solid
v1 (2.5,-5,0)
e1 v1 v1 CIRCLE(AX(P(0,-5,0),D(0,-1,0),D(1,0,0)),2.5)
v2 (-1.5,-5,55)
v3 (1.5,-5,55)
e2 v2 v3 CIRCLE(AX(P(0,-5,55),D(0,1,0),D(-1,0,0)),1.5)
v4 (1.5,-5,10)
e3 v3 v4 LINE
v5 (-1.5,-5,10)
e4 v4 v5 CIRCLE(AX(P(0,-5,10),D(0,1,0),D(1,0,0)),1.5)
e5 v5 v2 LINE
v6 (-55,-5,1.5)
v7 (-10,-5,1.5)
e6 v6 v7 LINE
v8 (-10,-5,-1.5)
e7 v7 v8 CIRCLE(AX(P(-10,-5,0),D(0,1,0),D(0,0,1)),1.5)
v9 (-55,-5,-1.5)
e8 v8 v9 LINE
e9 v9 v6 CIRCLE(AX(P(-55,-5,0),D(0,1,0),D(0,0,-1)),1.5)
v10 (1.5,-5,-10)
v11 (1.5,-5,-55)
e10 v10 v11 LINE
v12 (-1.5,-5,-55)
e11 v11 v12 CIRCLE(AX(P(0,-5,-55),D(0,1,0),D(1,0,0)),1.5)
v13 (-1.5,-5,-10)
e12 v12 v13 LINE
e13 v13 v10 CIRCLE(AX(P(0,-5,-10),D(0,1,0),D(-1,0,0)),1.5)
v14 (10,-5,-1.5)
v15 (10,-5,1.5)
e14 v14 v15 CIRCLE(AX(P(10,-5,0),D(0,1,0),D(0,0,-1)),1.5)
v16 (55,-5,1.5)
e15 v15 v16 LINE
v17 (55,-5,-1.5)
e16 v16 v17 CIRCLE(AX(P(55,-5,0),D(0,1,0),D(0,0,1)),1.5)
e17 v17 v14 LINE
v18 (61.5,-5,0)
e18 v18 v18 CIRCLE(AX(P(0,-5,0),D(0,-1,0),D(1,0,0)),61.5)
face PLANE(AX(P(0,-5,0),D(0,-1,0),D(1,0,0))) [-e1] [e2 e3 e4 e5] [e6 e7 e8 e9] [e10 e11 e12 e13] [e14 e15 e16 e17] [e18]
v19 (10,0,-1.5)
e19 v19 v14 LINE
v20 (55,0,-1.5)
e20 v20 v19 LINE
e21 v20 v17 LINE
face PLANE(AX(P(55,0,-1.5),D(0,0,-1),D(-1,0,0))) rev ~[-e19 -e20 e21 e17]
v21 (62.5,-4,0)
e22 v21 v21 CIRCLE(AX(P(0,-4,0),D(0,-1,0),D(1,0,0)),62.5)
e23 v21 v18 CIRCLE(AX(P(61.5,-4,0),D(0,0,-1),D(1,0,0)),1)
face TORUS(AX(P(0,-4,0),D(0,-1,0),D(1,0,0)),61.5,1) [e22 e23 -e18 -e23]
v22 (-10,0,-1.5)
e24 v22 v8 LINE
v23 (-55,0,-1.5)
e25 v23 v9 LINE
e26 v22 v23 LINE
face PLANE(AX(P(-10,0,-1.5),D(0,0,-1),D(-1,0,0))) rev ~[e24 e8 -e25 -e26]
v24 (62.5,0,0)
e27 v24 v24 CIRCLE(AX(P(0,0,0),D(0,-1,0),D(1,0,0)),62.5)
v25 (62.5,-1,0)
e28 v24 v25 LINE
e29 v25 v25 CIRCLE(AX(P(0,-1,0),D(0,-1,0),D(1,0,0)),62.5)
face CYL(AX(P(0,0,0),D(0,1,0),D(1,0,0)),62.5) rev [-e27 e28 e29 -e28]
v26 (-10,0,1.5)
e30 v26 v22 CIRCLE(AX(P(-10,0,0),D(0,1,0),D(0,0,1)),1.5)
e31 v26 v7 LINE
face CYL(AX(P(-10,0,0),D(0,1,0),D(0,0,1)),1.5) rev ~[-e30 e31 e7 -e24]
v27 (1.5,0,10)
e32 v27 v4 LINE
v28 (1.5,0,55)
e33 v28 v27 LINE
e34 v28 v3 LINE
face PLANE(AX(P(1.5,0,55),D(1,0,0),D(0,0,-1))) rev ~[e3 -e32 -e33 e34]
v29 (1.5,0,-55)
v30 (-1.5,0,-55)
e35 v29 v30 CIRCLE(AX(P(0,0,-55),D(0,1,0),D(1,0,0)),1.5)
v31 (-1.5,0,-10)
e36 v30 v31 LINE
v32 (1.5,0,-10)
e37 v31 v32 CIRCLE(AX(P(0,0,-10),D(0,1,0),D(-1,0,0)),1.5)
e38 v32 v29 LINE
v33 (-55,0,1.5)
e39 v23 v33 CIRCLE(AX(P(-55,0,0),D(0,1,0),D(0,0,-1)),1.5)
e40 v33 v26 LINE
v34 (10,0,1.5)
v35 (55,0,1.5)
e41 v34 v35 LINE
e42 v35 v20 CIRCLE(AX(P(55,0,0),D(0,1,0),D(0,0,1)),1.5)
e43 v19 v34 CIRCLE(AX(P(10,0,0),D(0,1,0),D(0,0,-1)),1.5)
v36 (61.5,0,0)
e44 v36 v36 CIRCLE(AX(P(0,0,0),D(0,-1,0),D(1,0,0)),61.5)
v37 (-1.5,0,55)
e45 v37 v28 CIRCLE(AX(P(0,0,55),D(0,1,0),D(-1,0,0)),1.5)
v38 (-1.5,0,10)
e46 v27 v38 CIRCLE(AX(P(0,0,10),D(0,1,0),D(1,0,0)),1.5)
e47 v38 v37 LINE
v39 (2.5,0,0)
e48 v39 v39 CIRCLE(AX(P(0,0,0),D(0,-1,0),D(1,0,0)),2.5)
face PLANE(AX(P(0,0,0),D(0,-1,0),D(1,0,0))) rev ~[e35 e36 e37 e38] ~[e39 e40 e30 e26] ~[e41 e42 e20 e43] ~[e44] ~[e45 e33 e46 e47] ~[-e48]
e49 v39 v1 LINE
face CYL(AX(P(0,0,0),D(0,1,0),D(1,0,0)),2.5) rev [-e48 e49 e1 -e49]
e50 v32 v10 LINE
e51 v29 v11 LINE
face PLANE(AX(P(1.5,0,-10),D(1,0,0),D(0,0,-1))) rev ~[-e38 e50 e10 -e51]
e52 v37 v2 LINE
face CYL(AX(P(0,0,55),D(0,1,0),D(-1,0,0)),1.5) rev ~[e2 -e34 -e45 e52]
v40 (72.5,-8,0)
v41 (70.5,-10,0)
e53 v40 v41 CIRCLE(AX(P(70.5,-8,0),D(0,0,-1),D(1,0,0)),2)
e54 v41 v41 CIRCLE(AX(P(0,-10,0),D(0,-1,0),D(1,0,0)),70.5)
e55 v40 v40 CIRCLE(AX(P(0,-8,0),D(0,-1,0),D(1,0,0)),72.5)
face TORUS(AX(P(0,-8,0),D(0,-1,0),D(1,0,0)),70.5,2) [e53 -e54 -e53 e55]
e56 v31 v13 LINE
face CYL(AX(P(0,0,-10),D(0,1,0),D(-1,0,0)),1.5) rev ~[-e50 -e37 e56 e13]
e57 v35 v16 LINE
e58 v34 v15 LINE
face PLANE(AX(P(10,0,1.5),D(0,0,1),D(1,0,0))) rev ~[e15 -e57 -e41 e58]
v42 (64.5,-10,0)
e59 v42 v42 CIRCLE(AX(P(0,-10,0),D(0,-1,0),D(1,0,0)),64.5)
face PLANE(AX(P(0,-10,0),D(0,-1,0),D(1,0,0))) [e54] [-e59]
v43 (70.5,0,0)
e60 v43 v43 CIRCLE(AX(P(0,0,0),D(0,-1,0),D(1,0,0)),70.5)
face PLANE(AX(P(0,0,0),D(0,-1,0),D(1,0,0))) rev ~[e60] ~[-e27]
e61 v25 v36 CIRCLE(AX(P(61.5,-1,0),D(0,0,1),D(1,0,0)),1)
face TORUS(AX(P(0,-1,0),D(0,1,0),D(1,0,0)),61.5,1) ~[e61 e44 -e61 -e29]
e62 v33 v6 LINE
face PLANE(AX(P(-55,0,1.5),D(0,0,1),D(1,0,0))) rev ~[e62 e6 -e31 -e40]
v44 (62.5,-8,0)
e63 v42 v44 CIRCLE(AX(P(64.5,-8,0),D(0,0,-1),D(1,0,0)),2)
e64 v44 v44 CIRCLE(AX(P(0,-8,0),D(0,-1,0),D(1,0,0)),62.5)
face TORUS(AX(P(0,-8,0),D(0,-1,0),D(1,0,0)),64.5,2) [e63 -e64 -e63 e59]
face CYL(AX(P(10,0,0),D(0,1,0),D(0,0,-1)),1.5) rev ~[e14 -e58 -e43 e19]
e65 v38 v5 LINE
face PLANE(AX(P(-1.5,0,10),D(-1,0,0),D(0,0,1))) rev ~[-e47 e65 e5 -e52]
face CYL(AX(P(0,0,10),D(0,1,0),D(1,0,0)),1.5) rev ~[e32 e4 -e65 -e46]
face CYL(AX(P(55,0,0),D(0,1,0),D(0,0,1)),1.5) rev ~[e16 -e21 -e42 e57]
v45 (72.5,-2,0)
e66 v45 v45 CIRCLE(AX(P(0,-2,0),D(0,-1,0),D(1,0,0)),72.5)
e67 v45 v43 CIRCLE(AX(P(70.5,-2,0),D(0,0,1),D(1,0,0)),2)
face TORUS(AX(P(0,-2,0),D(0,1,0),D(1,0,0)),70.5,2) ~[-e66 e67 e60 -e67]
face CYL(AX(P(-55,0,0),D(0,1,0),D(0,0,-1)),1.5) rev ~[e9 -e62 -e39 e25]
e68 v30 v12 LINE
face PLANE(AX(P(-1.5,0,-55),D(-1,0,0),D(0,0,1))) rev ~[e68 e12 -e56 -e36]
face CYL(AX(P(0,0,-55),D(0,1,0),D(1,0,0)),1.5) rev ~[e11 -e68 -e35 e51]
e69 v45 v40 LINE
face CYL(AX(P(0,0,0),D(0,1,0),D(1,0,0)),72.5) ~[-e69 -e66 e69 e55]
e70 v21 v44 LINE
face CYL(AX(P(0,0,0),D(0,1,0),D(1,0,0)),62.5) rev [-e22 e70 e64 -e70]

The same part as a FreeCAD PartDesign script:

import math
import FreeCAD as App
import Part
import Sketcher
from FreeCAD import Vector


def edges_at(feature, points):
    """Names of the edges that pass closest to the given points."""
    edges = feature.Shape.Edges
    near = lambda p: min(range(len(edges)), key=lambda i: edges[i].distToShape(Part.Vertex(*p))[0])
    return sorted({f"Edge{near(p) + 1}" for p in points})

doc = App.newDocument("Part")
body = doc.addObject("PartDesign::Body", "Body")

sketch1 = body.newObject("Sketcher::SketchObject", "Sketch")
sketch1.AttachmentSupport = (doc.getObject("XZ_Plane"), [""])
sketch1.MapMode = "FlatFace"
sketch1.addGeometry(Part.Circle(Vector(0, 0, 0), Vector(0, 0, 1), 62.5), False)
sketch1.addGeometry(Part.LineSegment(Vector(-1.5, -55, 0), Vector(-1.5, -10, 0)), False)
sketch1.addGeometry(Part.ArcOfCircle(Part.Circle(Vector(0, -10, 0), Vector(0, 0, 1), 1.5), math.radians(0), math.radians(180)), False)
sketch1.addGeometry(Part.LineSegment(Vector(1.5, -10, 0), Vector(1.5, -55, 0)), False)
sketch1.addGeometry(Part.ArcOfCircle(Part.Circle(Vector(0, -55, 0), Vector(0, 0, 1), 1.5), math.radians(180), math.radians(360)), False)
sketch1.addGeometry(Part.LineSegment(Vector(-55, 1.5, 0), Vector(-10, 1.5, 0)), False)
sketch1.addGeometry(Part.ArcOfCircle(Part.Circle(Vector(-10, 0, 0), Vector(0, 0, 1), 1.5), math.radians(-90), math.radians(90)), False)
sketch1.addGeometry(Part.LineSegment(Vector(-10, -1.5, 0), Vector(-55, -1.5, 0)), False)
sketch1.addGeometry(Part.ArcOfCircle(Part.Circle(Vector(-55, 0, 0), Vector(0, 0, 1), 1.5), math.radians(90), math.radians(270)), False)
sketch1.addGeometry(Part.Circle(Vector(0, 0, 0), Vector(0, 0, 1), 2.5), False)
sketch1.addGeometry(Part.ArcOfCircle(Part.Circle(Vector(55, 0, 0), Vector(0, 0, 1), 1.5), math.radians(-90), math.radians(90)), False)
sketch1.addGeometry(Part.LineSegment(Vector(55, -1.5, 0), Vector(10, -1.5, 0)), False)
sketch1.addGeometry(Part.ArcOfCircle(Part.Circle(Vector(10, 0, 0), Vector(0, 0, 1), 1.5), math.radians(90), math.radians(270)), False)
sketch1.addGeometry(Part.LineSegment(Vector(10, 1.5, 0), Vector(55, 1.5, 0)), False)
sketch1.addGeometry(Part.ArcOfCircle(Part.Circle(Vector(0, 55, 0), Vector(0, 0, 1), 1.5), math.radians(0), math.radians(180)), False)
sketch1.addGeometry(Part.LineSegment(Vector(1.5, 55, 0), Vector(1.5, 10, 0)), False)
sketch1.addGeometry(Part.ArcOfCircle(Part.Circle(Vector(0, 10, 0), Vector(0, 0, 1), 1.5), math.radians(180), math.radians(360)), False)
sketch1.addGeometry(Part.LineSegment(Vector(-1.5, 10, 0), Vector(-1.5, 55, 0)), False)
sketch1.addConstraint(Sketcher.Constraint("Tangent", 1, 2, 2, 2))
sketch1.addConstraint(Sketcher.Constraint("Tangent", 2, 1, 3, 1))
sketch1.addConstraint(Sketcher.Constraint("Tangent", 3, 2, 4, 2))
sketch1.addConstraint(Sketcher.Constraint("Tangent", 4, 1, 1, 1))
sketch1.addConstraint(Sketcher.Constraint("Tangent", 5, 2, 6, 2))
sketch1.addConstraint(Sketcher.Constraint("Tangent", 6, 1, 7, 1))
sketch1.addConstraint(Sketcher.Constraint("Tangent", 7, 2, 8, 2))
sketch1.addConstraint(Sketcher.Constraint("Tangent", 8, 1, 5, 1))
sketch1.addConstraint(Sketcher.Constraint("Tangent", 10, 1, 11, 1))
sketch1.addConstraint(Sketcher.Constraint("Tangent", 11, 2, 12, 2))
sketch1.addConstraint(Sketcher.Constraint("Tangent", 12, 1, 13, 1))
sketch1.addConstraint(Sketcher.Constraint("Tangent", 13, 2, 10, 2))
sketch1.addConstraint(Sketcher.Constraint("Tangent", 14, 1, 15, 1))
sketch1.addConstraint(Sketcher.Constraint("Tangent", 15, 2, 16, 2))
sketch1.addConstraint(Sketcher.Constraint("Tangent", 16, 1, 17, 1))
sketch1.addConstraint(Sketcher.Constraint("Tangent", 17, 2, 14, 2))
sketch1.addConstraint(Sketcher.Constraint("Vertical", 1))
sketch1.addConstraint(Sketcher.Constraint("Vertical", 3))
sketch1.addConstraint(Sketcher.Constraint("Horizontal", 5))
sketch1.addConstraint(Sketcher.Constraint("Horizontal", 7))
sketch1.addConstraint(Sketcher.Constraint("Horizontal", 11))
sketch1.addConstraint(Sketcher.Constraint("Horizontal", 13))
sketch1.addConstraint(Sketcher.Constraint("Vertical", 15))
sketch1.addConstraint(Sketcher.Constraint("Vertical", 17))
sketch1.addConstraint(Sketcher.Constraint("Coincident", 0, 3, -1, 1))
sketch1.addConstraint(Sketcher.Constraint("Coincident", 9, 3, -1, 1))
sketch1.addConstraint(Sketcher.Constraint("Equal", 4, 6))
sketch1.addConstraint(Sketcher.Constraint("Equal", 8, 10))
sketch1.addConstraint(Sketcher.Constraint("Equal", 12, 14))
sketch1.addConstraint(Sketcher.Constraint("Symmetric", 8, 3, 10, 3, -1, 1))
sketch1.addConstraint(Sketcher.Constraint("Symmetric", 4, 3, 14, 3, -1, 1))
sketch1.addConstraint(Sketcher.Constraint("Symmetric", 6, 3, 12, 3, -2))
sketch1.addConstraint(Sketcher.Constraint("Symmetric", 2, 3, 16, 3, -1))
sketch1.addConstraint(Sketcher.Constraint("Equal", 13, 1))
sketch1.addConstraint(Sketcher.Constraint("Diameter", 0, 125.0))
sketch1.addConstraint(Sketcher.Constraint("Diameter", 9, 5.0))
sketch1.addConstraint(Sketcher.Constraint("Radius", 2, 1.5))
sketch1.addConstraint(Sketcher.Constraint("DistanceX", 5, 1, 5, 2, 45.0))
sketch1.addConstraint(Sketcher.Constraint("DistanceY", 2, 3, -1, 1, 10.0))
sketch1.addConstraint(Sketcher.Constraint("DistanceX", 6, 3, -1, 1, 10.0))
pad1 = body.newObject("PartDesign::Pad", "Pad")
pad1.Profile = sketch1
pad1.Length = 5
doc.recompute()

fillet = body.newObject("PartDesign::Fillet", "Fillet")
fillet.Base = (pad1, edges_at(pad1, [(-62.5, -5, 0), (-62.5, 0, 0)]))
fillet.Radius = 1

sketch2 = body.newObject("Sketcher::SketchObject", "Sketch001")
sketch2.AttachmentSupport = (doc.getObject("XZ_Plane"), [""])
sketch2.MapMode = "FlatFace"
sketch2.addGeometry(Part.Circle(Vector(0, 0, 0), Vector(0, 0, 1), 72), False)
sketch2.addGeometry(Part.Circle(Vector(0, 0, 0), Vector(0, 0, 1), 62), False)
sketch2.addConstraint(Sketcher.Constraint("Coincident", 0, 3, -1, 1))
sketch2.addConstraint(Sketcher.Constraint("Coincident", 1, 3, -1, 1))
sketch2.addConstraint(Sketcher.Constraint("Diameter", 0, 145.0))
sketch2.addConstraint(Sketcher.Constraint("Diameter", 1, 125.0))
pad2 = body.newObject("PartDesign::Pad", "Pad001")
pad2.Profile = sketch2
pad2.Length = 10
doc.recompute()

fillet2 = body.newObject("PartDesign::Fillet", "Fillet001")
fillet2.Base = (pad2, edges_at(pad2, [
    (-61.5, -5, 0),
    (-62.5, -10, 0),
    (-72.5, -10, 0),
    (-72.5, 0, 0),
]))
fillet2.Radius = 2

doc.recompute()
